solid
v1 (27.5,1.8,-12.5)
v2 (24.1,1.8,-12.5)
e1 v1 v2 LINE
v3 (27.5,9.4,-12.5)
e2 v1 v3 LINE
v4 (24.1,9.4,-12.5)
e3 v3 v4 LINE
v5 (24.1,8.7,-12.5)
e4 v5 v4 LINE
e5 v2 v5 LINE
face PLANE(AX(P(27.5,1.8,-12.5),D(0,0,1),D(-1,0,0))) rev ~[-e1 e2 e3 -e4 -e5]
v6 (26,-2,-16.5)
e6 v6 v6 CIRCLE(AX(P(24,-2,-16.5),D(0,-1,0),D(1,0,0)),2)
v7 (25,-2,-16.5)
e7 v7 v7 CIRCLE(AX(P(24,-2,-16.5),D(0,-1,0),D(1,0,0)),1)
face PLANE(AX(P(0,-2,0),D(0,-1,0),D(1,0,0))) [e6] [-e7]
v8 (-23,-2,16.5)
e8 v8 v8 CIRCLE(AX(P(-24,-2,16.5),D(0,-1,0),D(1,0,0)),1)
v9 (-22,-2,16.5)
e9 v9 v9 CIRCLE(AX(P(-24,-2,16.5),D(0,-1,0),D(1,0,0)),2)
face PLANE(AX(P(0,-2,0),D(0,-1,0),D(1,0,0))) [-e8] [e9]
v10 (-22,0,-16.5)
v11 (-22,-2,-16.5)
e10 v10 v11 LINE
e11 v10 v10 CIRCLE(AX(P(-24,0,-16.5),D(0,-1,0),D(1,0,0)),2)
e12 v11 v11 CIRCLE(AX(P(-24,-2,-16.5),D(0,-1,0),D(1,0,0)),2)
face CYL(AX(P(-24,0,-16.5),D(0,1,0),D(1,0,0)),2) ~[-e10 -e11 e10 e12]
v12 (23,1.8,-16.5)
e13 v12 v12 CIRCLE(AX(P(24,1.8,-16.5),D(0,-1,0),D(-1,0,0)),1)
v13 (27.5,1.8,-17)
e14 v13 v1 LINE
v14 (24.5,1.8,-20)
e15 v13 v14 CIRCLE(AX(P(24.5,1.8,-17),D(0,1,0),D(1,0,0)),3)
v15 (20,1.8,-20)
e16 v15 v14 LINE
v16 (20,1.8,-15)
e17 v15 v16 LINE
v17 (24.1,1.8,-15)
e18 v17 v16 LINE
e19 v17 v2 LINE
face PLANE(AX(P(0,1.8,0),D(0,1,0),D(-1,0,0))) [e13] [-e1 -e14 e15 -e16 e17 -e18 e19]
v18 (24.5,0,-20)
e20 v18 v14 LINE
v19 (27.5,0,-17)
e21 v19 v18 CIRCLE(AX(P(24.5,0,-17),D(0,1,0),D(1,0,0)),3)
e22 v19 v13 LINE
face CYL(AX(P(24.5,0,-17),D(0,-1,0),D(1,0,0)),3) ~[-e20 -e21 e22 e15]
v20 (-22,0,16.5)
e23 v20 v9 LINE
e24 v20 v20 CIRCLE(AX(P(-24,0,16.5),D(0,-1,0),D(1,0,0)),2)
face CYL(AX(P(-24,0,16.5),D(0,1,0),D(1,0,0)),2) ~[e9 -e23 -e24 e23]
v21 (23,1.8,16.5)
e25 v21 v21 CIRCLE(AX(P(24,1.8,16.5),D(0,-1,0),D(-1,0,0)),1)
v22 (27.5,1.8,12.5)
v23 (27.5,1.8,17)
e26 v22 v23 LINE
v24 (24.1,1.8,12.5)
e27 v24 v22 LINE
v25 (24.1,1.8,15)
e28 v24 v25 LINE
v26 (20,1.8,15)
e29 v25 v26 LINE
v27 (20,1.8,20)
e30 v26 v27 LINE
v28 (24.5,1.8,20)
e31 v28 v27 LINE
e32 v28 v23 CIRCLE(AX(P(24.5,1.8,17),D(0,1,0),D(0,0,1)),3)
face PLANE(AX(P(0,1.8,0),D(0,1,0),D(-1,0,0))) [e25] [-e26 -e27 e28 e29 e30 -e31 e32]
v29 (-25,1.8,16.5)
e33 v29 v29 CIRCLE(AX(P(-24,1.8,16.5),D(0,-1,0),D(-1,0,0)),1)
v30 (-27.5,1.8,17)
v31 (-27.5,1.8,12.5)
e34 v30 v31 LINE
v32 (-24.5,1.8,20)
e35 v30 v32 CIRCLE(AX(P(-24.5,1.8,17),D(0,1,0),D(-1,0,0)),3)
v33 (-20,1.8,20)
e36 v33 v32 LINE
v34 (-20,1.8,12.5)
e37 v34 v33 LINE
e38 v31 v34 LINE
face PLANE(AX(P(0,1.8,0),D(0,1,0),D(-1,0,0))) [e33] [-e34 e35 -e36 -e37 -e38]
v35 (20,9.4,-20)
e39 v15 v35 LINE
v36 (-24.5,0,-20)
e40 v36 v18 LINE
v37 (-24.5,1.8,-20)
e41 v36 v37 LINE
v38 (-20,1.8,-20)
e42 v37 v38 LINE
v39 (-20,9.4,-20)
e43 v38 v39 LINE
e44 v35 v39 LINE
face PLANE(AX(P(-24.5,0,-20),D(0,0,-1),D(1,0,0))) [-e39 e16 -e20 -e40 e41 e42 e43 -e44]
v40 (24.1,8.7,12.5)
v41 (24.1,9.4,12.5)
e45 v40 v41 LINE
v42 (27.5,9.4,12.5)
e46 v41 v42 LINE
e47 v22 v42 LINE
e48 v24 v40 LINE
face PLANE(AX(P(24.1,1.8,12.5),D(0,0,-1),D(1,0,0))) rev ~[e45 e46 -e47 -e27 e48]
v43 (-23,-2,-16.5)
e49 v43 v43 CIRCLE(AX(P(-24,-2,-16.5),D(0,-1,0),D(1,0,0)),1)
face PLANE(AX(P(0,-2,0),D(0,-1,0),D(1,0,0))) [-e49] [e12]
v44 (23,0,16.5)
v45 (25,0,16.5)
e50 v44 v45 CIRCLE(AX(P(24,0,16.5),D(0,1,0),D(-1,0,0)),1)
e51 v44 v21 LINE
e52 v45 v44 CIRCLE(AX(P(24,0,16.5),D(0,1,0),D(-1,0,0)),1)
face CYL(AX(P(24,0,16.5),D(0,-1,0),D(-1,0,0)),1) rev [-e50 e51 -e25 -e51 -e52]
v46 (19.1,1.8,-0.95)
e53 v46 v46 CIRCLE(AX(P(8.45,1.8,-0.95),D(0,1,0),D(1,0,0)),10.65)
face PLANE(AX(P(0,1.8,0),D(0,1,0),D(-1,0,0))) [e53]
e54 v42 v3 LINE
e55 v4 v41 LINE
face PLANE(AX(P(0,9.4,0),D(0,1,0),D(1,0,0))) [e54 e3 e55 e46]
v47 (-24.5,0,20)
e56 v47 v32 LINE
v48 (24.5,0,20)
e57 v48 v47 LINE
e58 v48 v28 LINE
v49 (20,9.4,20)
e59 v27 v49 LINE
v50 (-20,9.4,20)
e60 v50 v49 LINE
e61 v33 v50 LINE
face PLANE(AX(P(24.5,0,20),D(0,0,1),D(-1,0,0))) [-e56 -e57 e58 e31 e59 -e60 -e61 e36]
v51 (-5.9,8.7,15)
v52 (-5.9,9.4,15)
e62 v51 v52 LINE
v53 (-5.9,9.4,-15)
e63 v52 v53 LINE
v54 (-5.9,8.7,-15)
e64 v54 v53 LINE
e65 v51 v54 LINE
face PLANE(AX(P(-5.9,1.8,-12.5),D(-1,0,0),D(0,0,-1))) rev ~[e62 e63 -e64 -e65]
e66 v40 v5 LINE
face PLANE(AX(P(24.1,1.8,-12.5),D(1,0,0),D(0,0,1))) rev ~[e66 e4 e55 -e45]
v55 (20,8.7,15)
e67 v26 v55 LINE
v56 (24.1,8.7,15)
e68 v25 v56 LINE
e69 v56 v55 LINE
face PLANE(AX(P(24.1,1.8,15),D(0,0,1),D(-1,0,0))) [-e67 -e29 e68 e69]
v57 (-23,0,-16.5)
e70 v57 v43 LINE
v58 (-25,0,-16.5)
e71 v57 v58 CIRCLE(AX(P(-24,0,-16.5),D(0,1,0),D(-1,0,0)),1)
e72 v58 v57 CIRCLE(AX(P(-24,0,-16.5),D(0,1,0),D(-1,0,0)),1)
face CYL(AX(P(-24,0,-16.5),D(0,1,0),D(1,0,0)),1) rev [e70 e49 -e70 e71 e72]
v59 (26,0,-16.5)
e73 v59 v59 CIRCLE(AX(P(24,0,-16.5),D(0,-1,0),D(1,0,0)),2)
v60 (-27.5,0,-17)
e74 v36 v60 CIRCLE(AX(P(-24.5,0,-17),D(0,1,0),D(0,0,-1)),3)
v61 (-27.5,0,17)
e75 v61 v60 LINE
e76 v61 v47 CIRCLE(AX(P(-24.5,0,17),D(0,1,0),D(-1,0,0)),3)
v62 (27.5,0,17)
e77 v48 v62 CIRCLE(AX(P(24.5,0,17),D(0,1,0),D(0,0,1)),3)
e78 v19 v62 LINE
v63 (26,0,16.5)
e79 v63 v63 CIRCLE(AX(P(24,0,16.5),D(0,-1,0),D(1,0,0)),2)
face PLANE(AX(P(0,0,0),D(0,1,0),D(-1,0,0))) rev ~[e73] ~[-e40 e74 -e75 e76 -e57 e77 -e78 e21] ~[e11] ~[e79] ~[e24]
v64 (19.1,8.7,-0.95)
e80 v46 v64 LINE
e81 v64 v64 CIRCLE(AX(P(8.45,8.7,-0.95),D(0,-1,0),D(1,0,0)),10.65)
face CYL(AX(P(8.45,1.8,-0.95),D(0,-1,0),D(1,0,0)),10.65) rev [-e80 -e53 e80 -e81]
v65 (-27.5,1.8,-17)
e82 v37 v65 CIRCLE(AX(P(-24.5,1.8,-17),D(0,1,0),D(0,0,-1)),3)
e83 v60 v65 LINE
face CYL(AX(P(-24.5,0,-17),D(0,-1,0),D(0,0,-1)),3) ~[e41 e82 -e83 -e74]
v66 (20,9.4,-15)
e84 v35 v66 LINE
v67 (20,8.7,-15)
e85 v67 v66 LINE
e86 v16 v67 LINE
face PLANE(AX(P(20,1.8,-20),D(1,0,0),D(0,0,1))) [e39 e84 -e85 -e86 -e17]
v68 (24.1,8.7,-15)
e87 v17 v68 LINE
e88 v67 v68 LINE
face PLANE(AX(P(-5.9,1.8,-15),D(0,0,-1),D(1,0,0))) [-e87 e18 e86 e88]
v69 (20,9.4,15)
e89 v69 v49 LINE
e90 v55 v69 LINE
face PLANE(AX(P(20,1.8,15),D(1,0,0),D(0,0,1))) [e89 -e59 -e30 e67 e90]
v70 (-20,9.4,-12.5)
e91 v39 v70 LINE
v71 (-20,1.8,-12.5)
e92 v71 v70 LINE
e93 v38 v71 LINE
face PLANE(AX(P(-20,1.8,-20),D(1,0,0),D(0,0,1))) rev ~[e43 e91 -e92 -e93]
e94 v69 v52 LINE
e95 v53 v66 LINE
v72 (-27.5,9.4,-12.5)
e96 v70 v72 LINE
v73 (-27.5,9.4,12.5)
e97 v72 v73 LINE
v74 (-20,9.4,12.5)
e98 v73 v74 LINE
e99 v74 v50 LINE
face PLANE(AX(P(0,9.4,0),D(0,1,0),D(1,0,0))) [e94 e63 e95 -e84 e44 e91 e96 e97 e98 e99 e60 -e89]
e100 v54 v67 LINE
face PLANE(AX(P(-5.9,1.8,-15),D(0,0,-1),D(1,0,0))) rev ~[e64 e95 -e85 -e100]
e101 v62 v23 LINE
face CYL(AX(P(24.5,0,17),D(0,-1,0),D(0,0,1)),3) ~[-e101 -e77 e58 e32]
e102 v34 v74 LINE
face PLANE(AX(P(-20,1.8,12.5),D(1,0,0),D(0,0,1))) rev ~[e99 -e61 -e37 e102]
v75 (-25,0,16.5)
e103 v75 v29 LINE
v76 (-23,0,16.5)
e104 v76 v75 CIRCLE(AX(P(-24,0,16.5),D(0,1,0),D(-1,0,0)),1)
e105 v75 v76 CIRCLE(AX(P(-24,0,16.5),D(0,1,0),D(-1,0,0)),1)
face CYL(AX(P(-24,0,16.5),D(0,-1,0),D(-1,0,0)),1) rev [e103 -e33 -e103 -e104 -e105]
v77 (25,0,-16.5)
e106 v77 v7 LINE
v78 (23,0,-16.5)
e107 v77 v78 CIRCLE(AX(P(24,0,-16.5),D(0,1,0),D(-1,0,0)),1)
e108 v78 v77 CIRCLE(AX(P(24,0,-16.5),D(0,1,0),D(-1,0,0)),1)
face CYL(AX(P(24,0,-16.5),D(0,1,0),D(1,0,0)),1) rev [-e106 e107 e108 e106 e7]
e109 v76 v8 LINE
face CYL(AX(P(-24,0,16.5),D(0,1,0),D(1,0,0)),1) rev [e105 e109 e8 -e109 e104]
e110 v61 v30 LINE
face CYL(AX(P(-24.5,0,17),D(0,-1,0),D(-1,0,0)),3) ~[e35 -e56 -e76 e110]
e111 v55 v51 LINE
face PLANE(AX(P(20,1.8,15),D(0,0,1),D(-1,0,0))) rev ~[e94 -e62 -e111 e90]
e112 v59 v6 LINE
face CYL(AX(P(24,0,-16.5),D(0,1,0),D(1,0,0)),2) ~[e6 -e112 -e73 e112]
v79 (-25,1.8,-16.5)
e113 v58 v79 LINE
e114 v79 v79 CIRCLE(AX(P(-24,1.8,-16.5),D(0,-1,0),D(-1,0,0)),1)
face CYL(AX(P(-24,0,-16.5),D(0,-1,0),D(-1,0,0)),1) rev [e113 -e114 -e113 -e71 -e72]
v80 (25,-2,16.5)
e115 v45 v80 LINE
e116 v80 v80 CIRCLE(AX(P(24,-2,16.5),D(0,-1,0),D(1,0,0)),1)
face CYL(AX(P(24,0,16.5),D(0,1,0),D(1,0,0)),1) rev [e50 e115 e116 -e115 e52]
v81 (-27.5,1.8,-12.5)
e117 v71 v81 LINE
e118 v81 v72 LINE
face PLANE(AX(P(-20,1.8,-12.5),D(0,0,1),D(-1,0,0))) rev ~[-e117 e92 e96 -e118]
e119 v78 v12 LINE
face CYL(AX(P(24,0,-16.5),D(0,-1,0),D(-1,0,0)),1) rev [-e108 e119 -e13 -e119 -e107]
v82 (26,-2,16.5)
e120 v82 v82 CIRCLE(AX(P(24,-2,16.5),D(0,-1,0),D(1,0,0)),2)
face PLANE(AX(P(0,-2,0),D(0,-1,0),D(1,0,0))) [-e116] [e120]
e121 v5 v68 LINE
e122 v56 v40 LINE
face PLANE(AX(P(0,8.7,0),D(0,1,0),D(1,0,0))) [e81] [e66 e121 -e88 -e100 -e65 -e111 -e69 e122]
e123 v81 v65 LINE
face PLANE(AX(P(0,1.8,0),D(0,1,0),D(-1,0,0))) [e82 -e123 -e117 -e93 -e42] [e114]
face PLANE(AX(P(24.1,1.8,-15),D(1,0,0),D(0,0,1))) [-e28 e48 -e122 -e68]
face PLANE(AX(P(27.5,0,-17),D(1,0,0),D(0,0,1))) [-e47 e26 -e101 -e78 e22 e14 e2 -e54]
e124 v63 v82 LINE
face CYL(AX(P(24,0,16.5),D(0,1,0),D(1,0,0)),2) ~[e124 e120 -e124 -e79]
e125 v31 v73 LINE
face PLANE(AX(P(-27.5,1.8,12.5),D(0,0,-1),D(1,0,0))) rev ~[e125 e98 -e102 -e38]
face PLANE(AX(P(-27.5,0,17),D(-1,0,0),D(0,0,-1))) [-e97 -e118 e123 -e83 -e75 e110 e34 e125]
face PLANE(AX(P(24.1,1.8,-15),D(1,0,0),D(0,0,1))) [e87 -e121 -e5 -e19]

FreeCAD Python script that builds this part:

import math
import FreeCAD as App
import Part
import Sketcher
Q = App.Units.Quantity


def add_polygon(sketch, points):
    """Adds a closed chain of lines whose ends are joined by coincident constraints."""
    first, n = sketch.GeometryCount, len(points)
    for a, b in zip(points, points[1:] + points[:1]):
        sketch.addGeometry(Part.LineSegment(App.Vector(*a, 0), App.Vector(*b, 0)), False)
    for i in range(n):
        sketch.addConstraint(Sketcher.Constraint("Coincident", first + i, 2, first + (i + 1) % n, 1))

doc = App.newDocument("Part")
body = doc.addObject("PartDesign::Body", "Body")

# Sketch on XZ plane
sketch1 = body.newObject("Sketcher::SketchObject", "Sketch")
sketch1.AttachmentSupport = (doc.getObject("XZ_Plane"), [""])
sketch1.MapMode = "FlatFace"
sketch1.addGeometry(Part.LineSegment(App.Vector(-24.5, 20, 0), App.Vector(24.5, 20, 0)), False)
sketch1.addGeometry(Part.ArcOfCircle(Part.Circle(App.Vector(24.5, 17, 0), App.Vector(0, 0, 1), 3), math.radians(0), math.radians(90)), False)
sketch1.addGeometry(Part.LineSegment(App.Vector(27.5, 17, 0), App.Vector(27.5, -17, 0)), False)
sketch1.addGeometry(Part.ArcOfCircle(Part.Circle(App.Vector(24.5, -17, 0), App.Vector(0, 0, 1), 3), math.radians(-90), math.radians(0)), False)
sketch1.addGeometry(Part.LineSegment(App.Vector(24.5, -20, 0), App.Vector(-24.5, -20, 0)), False)
sketch1.addGeometry(Part.ArcOfCircle(Part.Circle(App.Vector(-24.5, -17, 0), App.Vector(0, 0, 1), 3), math.radians(180), math.radians(270)), False)
sketch1.addGeometry(Part.LineSegment(App.Vector(-27.5, -17, 0), App.Vector(-27.5, 17, 0)), False)
sketch1.addGeometry(Part.ArcOfCircle(Part.Circle(App.Vector(-24.5, 17, 0), App.Vector(0, 0, 1), 3), math.radians(90), math.radians(180)), False)
sketch1.addGeometry(Part.Circle(App.Vector(24, 16.5, 0), App.Vector(0, 0, 1), 1), False)
sketch1.addGeometry(Part.Circle(App.Vector(24, -16.5, 0), App.Vector(0, 0, 1), 1), False)
sketch1.addGeometry(Part.Circle(App.Vector(-24, -16.5, 0), App.Vector(0, 0, 1), 1), False)
sketch1.addGeometry(Part.Circle(App.Vector(-24, 16.5, 0), App.Vector(0, 0, 1), 1), False)
sketch1.addConstraint(Sketcher.Constraint("Tangent", 0, 2, 1, 2))
sketch1.addConstraint(Sketcher.Constraint("Tangent", 1, 1, 2, 1))
sketch1.addConstraint(Sketcher.Constraint("Tangent", 2, 2, 3, 2))
sketch1.addConstraint(Sketcher.Constraint("Tangent", 3, 1, 4, 1))
sketch1.addConstraint(Sketcher.Constraint("Tangent", 4, 2, 5, 2))
sketch1.addConstraint(Sketcher.Constraint("Tangent", 5, 1, 6, 1))
sketch1.addConstraint(Sketcher.Constraint("Tangent", 6, 2, 7, 2))
sketch1.addConstraint(Sketcher.Constraint("Tangent", 7, 1, 0, 1))
sketch1.addConstraint(Sketcher.Constraint("Horizontal", 0))
sketch1.addConstraint(Sketcher.Constraint("Vertical", 2))
sketch1.addConstraint(Sketcher.Constraint("Horizontal", 4))
sketch1.addConstraint(Sketcher.Constraint("Vertical", 6))
sketch1.addConstraint(Sketcher.Constraint("Equal", 1, 3))
sketch1.addConstraint(Sketcher.Constraint("Equal", 3, 5))
sketch1.addConstraint(Sketcher.Constraint("Equal", 5, 7))
sketch1.addConstraint(Sketcher.Constraint("Equal", 8, 9))
sketch1.addConstraint(Sketcher.Constraint("Equal", 9, 10))
sketch1.addConstraint(Sketcher.Constraint("Equal", 10, 11))
sketch1.addConstraint(Sketcher.Constraint("Symmetric", 1, 3, 5, 3, -1, 1))
sketch1.addConstraint(Sketcher.Constraint("Symmetric", 8, 3, 10, 3, -1, 1))
sketch1.addConstraint(Sketcher.Constraint("Symmetric", 9, 3, 11, 3, -1, 1))
sketch1.addConstraint(Sketcher.Constraint("Symmetric", 9, 3, 10, 3, -2))
sketch1.addConstraint(Sketcher.Constraint("Diameter", 8, Q("2 mm")))
sketch1.addConstraint(Sketcher.Constraint("Radius", 1, Q("3 mm")))
sketch1.addConstraint(Sketcher.Constraint("DistanceY", 9, 3, 8, 3, Q("33 mm")))
sketch1.addConstraint(Sketcher.Constraint("DistanceX", 10, 3, 9, 3, Q("48 mm")))
sketch1.addConstraint(Sketcher.Constraint("DistanceX", 0, 1, 0, 2, Q("49 mm")))
sketch1.addConstraint(Sketcher.Constraint("DistanceY", 2, 2, 2, 1, Q("34 mm")))
pad1 = body.newObject("PartDesign::Pad", "Pad")
pad1.Profile = sketch1
pad1.Length = 1.8
pad1.Reversed = True

# Sketch on XZ plane
sketch2 = body.newObject("Sketcher::SketchObject", "Sketch001")
sketch2.AttachmentSupport = (doc.getObject("XZ_Plane"), [""])
sketch2.MapMode = "FlatFace"
sketch2.AttachmentOffset = App.Placement(App.Vector(0, 0, -1.8), App.Rotation())
add_polygon(sketch2, [(-6, -15), (-6, 15), (24, 15), (24, -15)])  # lines 0-3
sketch2.addGeometry(Part.Circle(App.Vector(8, -1, 0), App.Vector(0, 0, 1), 11), False)  # 4
sketch2.addConstraint(Sketcher.Constraint("Vertical", 0))
sketch2.addConstraint(Sketcher.Constraint("Horizontal", 1))
sketch2.addConstraint(Sketcher.Constraint("Vertical", 2))
sketch2.addConstraint(Sketcher.Constraint("Horizontal", 3))
sketch2.addConstraint(Sketcher.Constraint("Equal", 3, 0))
sketch2.addConstraint(Sketcher.Constraint("Diameter", 4, Q("21.3 mm")))
sketch2.addConstraint(Sketcher.Constraint("DistanceX", 1, 1, 1, 2, Q("30 mm")))
sketch2.addConstraint(Sketcher.Constraint("DistanceY", -1, 1, 0, 2, Q("15 mm")))
sketch2.addConstraint(Sketcher.Constraint("DistanceX", 0, 2, -1, 1, Q("5.9 mm")))
sketch2.addConstraint(Sketcher.Constraint("DistanceX", -1, 1, 4, 3, Q("8.45 mm")))
sketch2.addConstraint(Sketcher.Constraint("DistanceY", 4, 3, -1, 1, Q("0.95 mm")))
pad2 = body.newObject("PartDesign::Pad", "Pad001")
pad2.Profile = sketch2
pad2.Length = 6.9
pad2.Reversed = True

# Sketch on XZ plane
sketch3 = body.newObject("Sketcher::SketchObject", "Sketch002")
sketch3.AttachmentSupport = (doc.getObject("XZ_Plane"), [""])
sketch3.MapMode = "FlatFace"
sketch3.AttachmentOffset = App.Placement(App.Vector(0, 0, -1.8), App.Rotation())
add_polygon(sketch3, [(20, -15), (20, -20), (-20, -20), (-20, -12.5), (-27.5, -12.5), (-27.5, 12.5), (-20, 12.5), (-20, 20), (20, 20), (20, 15), (-5.9, 15), (-5.9, -15)])  # lines 0-11
add_polygon(sketch3, [(27.5, 12.5), (27.5, -12.5), (24.1, -12.5), (24.1, 12.5)])  # lines 12-15
sketch3.addConstraint(Sketcher.Constraint("Vertical", 0))
sketch3.addConstraint(Sketcher.Constraint("Horizontal", 1))
sketch3.addConstraint(Sketcher.Constraint("Vertical", 2))
sketch3.addConstraint(Sketcher.Constraint("Horizontal", 3))
sketch3.addConstraint(Sketcher.Constraint("Vertical", 4))
sketch3.addConstraint(Sketcher.Constraint("Horizontal", 5))
sketch3.addConstraint(Sketcher.Constraint("Vertical", 6))
sketch3.addConstraint(Sketcher.Constraint("Horizontal", 7))
sketch3.addConstraint(Sketcher.Constraint("Vertical", 8))
sketch3.addConstraint(Sketcher.Constraint("Horizontal", 9))
sketch3.addConstraint(Sketcher.Constraint("Vertical", 10))
sketch3.addConstraint(Sketcher.Constraint("Horizontal", 11))
sketch3.addConstraint(Sketcher.Constraint("Vertical", 12))
sketch3.addConstraint(Sketcher.Constraint("Horizontal", 13))
sketch3.addConstraint(Sketcher.Constraint("Vertical", 14))
sketch3.addConstraint(Sketcher.Constraint("Horizontal", 15))
sketch3.addConstraint(Sketcher.Constraint("Symmetric", 0, 2, 6, 2, -1, 1))
sketch3.addConstraint(Sketcher.Constraint("Symmetric", 4, 2, 12, 2, -1, 1))
sketch3.addConstraint(Sketcher.Constraint("Symmetric", 2, 2, 5, 2, -1))
sketch3.addConstraint(Sketcher.Constraint("Symmetric", 8, 2, 11, 2, -1))
sketch3.addConstraint(Sketcher.Constraint("Horizontal", 5, 2, 14, 2))
sketch3.addConstraint(Sketcher.Constraint("Equal", 5, 2))
sketch3.addConstraint(Sketcher.Constraint("DistanceX", 3, 2, 3, 1, Q("7.5 mm")))
sketch3.addConstraint(Sketcher.Constraint("DistanceX", 1, 2, 1, 1, Q("40 mm")))
sketch3.addConstraint(Sketcher.Constraint("DistanceY", 0, 2, 0, 1, Q("5 mm")))
sketch3.addConstraint(Sketcher.Constraint("DistanceY", 4, 1, 4, 2, Q("25 mm")))
sketch3.addConstraint(Sketcher.Constraint("DistanceX", 9, 2, 9, 1, Q("25.9 mm")))
sketch3.addConstraint(Sketcher.Constraint("DistanceX", 13, 2, 13, 1, Q("3.4 mm")))
pad3 = body.newObject("PartDesign::Pad", "Pad002")
pad3.Profile = sketch3
pad3.Length = 7.6
pad3.Reversed = True

# Sketch on XZ plane
sketch4 = body.newObject("Sketcher::SketchObject", "Sketch003")
sketch4.AttachmentSupport = (doc.getObject("XZ_Plane"), [""])
sketch4.MapMode = "FlatFace"
sketch4.addGeometry(Part.Circle(App.Vector(-24, 16.5, 0), App.Vector(0, 0, 1), 2), False)
sketch4.addGeometry(Part.Circle(App.Vector(-24, 16.5, 0), App.Vector(0, 0, 1), 1), False)
sketch4.addGeometry(Part.Circle(App.Vector(-24, -16.5, 0), App.Vector(0, 0, 1), 2), False)
sketch4.addGeometry(Part.Circle(App.Vector(-24, -16.5, 0), App.Vector(0, 0, 1), 1), False)
sketch4.addGeometry(Part.Circle(App.Vector(24, -16.5, 0), App.Vector(0, 0, 1), 2), False)
sketch4.addGeometry(Part.Circle(App.Vector(24, -16.5, 0), App.Vector(0, 0, 1), 1), False)
sketch4.addGeometry(Part.Circle(App.Vector(24, 16.5, 0), App.Vector(0, 0, 1), 2), False)
sketch4.addGeometry(Part.Circle(App.Vector(24, 16.5, 0), App.Vector(0, 0, 1), 1), False)
sketch4.addConstraint(Sketcher.Constraint("Coincident", 1, 3, 0, 3))
sketch4.addConstraint(Sketcher.Constraint("Coincident", 3, 3, 2, 3))
sketch4.addConstraint(Sketcher.Constraint("Coincident", 5, 3, 4, 3))
sketch4.addConstraint(Sketcher.Constraint("Coincident", 7, 3, 6, 3))
sketch4.addConstraint(Sketcher.Constraint("Equal", 0, 2))
sketch4.addConstraint(Sketcher.Constraint("Equal", 1, 3))
sketch4.addConstraint(Sketcher.Constraint("Equal", 2, 4))
sketch4.addConstraint(Sketcher.Constraint("Equal", 3, 5))
sketch4.addConstraint(Sketcher.Constraint("Equal", 4, 6))
sketch4.addConstraint(Sketcher.Constraint("Equal", 5, 7))
sketch4.addConstraint(Sketcher.Constraint("Symmetric", 0, 3, 4, 3, -1, 1))
sketch4.addConstraint(Sketcher.Constraint("Symmetric", 2, 3, 6, 3, -1, 1))
sketch4.addConstraint(Sketcher.Constraint("Symmetric", 2, 3, 4, 3, -2))
sketch4.addConstraint(Sketcher.Constraint("Diameter", 0, Q("4 mm")))
sketch4.addConstraint(Sketcher.Constraint("Diameter", 1, Q("2 mm")))
sketch4.addConstraint(Sketcher.Constraint("DistanceX", 0, 3, -1, 1, Q("24 mm")))
sketch4.addConstraint(Sketcher.Constraint("DistanceY", 2, 3, 0, 3, Q("33 mm")))
pad4 = body.newObject("PartDesign::Pad", "Pad003")
pad4.Profile = sketch4
pad4.Length = 2

doc.recompute()
